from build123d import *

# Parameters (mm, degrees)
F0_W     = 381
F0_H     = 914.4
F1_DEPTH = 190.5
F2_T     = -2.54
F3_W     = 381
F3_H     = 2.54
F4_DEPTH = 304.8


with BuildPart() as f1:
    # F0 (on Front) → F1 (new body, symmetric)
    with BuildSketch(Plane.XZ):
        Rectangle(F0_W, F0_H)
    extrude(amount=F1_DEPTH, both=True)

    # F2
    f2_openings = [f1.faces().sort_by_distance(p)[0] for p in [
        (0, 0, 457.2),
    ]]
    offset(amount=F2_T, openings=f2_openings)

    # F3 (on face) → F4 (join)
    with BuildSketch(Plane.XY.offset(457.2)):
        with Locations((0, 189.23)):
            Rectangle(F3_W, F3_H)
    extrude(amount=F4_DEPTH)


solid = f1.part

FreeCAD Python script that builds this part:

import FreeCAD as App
import Part
import Sketcher

V = App.Vector
Q = App.Units.Quantity


def faces_at(feature, points):
    """Names of the faces that lie closest to the given points."""
    faces = feature.Shape.Faces
    near = lambda p: min(range(len(faces)), key=lambda i: faces[i].distToShape(Part.Vertex(*p))[0])
    return sorted({f"Face{near(p) + 1}" for p in points})

doc = App.newDocument("Part")
body = doc.addObject("PartDesign::Body", "Body")

# Sketch on XZ plane
sketch1 = body.newObject("Sketcher::SketchObject", "Sketch")
sketch1.AttachmentSupport = (doc.getObject("XZ_Plane"), [""])
sketch1.MapMode = "FlatFace"
sketch1.addGeometry([
    Part.LineSegment(V(-190, 457, 0), V(-190, -457, 0)),
    Part.LineSegment(V(-190, -457, 0), V(190, -457, 0)),
    Part.LineSegment(V(190, -457, 0), V(190, 457, 0)),
    Part.LineSegment(V(190, 457, 0), V(-190, 457, 0)),
], False)
sketch1.addConstraint([
    Sketcher.Constraint("Coincident", 0, 2, 1, 1),
    Sketcher.Constraint("Coincident", 1, 2, 2, 1),
    Sketcher.Constraint("Coincident", 2, 2, 3, 1),
    Sketcher.Constraint("Coincident", 3, 2, 0, 1),
    Sketcher.Constraint("Vertical", 0),
    Sketcher.Constraint("Horizontal", 1),
    Sketcher.Constraint("Vertical", 2),
    Sketcher.Constraint("Horizontal", 3),
    Sketcher.Constraint("Symmetric", 0, 2, 2, 2, -1, 1),
    Sketcher.Constraint("DistanceX", 1, 1, 1, 2, Q("15 in")),
    Sketcher.Constraint("DistanceY", 0, 2, 0, 1, Q("36 in")),
])
pad1 = body.newObject("PartDesign::Pad", "Pad")
pad1.Profile = sketch1
pad1.Length = Q("15 in")
pad1.Midplane = True
doc.recompute()

thickness = body.newObject("PartDesign::Thickness", "Thickness")
thickness.Base = (pad1, faces_at(pad1, [(0, 0, 457.2)]))
thickness.Value = Q("0.1 in")
thickness.Reversed = True
thickness.Join = "Arc"

# Sketch on XY plane
sketch2 = body.newObject("Sketcher::SketchObject", "Sketch001")
sketch2.AttachmentSupport = (doc.getObject("XY_Plane"), [""])
sketch2.MapMode = "FlatFace"
sketch2.AttachmentOffset = App.Placement(V(0, 0, 18 * 25.4), App.Rotation())
sketch2.addGeometry([
    Part.LineSegment(V(-190.5, 190.5, 0), V(-190.5, 188, 0)),
    Part.LineSegment(V(-190.5, 188, 0), V(190.5, 188, 0)),
    Part.LineSegment(V(190.5, 188, 0), V(190.5, 190.5, 0)),
    Part.LineSegment(V(190.5, 190.5, 0), V(-190.5, 190.5, 0)),
], False)
sketch2.addConstraint([
    Sketcher.Constraint("Coincident", 0, 2, 1, 1),
    Sketcher.Constraint("Coincident", 1, 2, 2, 1),
    Sketcher.Constraint("Coincident", 2, 2, 3, 1),
    Sketcher.Constraint("Coincident", 3, 2, 0, 1),
    Sketcher.Constraint("Vertical", 0),
    Sketcher.Constraint("Horizontal", 1),
    Sketcher.Constraint("Vertical", 2),
    Sketcher.Constraint("Horizontal", 3),
    Sketcher.Constraint("DistanceX", 1, 1, 1, 2, Q("15 in")),
    Sketcher.Constraint("DistanceY", 0, 2, 0, 1, Q("0.1 in")),
    Sketcher.Constraint("DistanceX", 0, 2, -1, 1, Q("7.5 in")),
    Sketcher.Constraint("DistanceY", -1, 1, 0, 2, Q("7.4 in")),
])
pad2 = body.newObject("PartDesign::Pad", "Pad001")
pad2.Profile = sketch2
pad2.Length = Q("12 in")

doc.recompute()
